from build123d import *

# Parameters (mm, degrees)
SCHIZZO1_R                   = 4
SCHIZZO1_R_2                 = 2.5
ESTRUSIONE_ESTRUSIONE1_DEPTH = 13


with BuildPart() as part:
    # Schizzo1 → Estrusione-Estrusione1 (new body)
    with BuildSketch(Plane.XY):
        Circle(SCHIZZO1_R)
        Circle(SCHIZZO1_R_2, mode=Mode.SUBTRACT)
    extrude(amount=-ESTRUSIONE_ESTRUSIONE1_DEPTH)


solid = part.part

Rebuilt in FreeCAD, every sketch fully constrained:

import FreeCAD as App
import Part
import Sketcher

doc = App.newDocument("Part")
body = doc.addObject("PartDesign::Body", "Body")

sketch1 = body.newObject("Sketcher::SketchObject", "Sketch")
sketch1.AttachmentSupport = (doc.getObject("XY_Plane"), [""])
sketch1.MapMode = "FlatFace"
sketch1.addGeometry(Part.Circle(App.Vector(0, 0, 0), App.Vector(0, 0, 1), 4), False)
sketch1.addGeometry(Part.Circle(App.Vector(0, 0, 0), App.Vector(0, 0, 1), 2.5), False)
sketch1.addConstraint(Sketcher.Constraint("Coincident", 0, 3, -1, 1))
sketch1.addConstraint(Sketcher.Constraint("Coincident", 1, 3, -1, 1))
sketch1.addConstraint(Sketcher.Constraint("Diameter", 0, 8.0))
sketch1.addConstraint(Sketcher.Constraint("Diameter", 1, 5.0))
pad1 = body.newObject("PartDesign::Pad", "Pad")
pad1.Profile = sketch1
pad1.Length = 13
pad1.Reversed = True

doc.recompute()
